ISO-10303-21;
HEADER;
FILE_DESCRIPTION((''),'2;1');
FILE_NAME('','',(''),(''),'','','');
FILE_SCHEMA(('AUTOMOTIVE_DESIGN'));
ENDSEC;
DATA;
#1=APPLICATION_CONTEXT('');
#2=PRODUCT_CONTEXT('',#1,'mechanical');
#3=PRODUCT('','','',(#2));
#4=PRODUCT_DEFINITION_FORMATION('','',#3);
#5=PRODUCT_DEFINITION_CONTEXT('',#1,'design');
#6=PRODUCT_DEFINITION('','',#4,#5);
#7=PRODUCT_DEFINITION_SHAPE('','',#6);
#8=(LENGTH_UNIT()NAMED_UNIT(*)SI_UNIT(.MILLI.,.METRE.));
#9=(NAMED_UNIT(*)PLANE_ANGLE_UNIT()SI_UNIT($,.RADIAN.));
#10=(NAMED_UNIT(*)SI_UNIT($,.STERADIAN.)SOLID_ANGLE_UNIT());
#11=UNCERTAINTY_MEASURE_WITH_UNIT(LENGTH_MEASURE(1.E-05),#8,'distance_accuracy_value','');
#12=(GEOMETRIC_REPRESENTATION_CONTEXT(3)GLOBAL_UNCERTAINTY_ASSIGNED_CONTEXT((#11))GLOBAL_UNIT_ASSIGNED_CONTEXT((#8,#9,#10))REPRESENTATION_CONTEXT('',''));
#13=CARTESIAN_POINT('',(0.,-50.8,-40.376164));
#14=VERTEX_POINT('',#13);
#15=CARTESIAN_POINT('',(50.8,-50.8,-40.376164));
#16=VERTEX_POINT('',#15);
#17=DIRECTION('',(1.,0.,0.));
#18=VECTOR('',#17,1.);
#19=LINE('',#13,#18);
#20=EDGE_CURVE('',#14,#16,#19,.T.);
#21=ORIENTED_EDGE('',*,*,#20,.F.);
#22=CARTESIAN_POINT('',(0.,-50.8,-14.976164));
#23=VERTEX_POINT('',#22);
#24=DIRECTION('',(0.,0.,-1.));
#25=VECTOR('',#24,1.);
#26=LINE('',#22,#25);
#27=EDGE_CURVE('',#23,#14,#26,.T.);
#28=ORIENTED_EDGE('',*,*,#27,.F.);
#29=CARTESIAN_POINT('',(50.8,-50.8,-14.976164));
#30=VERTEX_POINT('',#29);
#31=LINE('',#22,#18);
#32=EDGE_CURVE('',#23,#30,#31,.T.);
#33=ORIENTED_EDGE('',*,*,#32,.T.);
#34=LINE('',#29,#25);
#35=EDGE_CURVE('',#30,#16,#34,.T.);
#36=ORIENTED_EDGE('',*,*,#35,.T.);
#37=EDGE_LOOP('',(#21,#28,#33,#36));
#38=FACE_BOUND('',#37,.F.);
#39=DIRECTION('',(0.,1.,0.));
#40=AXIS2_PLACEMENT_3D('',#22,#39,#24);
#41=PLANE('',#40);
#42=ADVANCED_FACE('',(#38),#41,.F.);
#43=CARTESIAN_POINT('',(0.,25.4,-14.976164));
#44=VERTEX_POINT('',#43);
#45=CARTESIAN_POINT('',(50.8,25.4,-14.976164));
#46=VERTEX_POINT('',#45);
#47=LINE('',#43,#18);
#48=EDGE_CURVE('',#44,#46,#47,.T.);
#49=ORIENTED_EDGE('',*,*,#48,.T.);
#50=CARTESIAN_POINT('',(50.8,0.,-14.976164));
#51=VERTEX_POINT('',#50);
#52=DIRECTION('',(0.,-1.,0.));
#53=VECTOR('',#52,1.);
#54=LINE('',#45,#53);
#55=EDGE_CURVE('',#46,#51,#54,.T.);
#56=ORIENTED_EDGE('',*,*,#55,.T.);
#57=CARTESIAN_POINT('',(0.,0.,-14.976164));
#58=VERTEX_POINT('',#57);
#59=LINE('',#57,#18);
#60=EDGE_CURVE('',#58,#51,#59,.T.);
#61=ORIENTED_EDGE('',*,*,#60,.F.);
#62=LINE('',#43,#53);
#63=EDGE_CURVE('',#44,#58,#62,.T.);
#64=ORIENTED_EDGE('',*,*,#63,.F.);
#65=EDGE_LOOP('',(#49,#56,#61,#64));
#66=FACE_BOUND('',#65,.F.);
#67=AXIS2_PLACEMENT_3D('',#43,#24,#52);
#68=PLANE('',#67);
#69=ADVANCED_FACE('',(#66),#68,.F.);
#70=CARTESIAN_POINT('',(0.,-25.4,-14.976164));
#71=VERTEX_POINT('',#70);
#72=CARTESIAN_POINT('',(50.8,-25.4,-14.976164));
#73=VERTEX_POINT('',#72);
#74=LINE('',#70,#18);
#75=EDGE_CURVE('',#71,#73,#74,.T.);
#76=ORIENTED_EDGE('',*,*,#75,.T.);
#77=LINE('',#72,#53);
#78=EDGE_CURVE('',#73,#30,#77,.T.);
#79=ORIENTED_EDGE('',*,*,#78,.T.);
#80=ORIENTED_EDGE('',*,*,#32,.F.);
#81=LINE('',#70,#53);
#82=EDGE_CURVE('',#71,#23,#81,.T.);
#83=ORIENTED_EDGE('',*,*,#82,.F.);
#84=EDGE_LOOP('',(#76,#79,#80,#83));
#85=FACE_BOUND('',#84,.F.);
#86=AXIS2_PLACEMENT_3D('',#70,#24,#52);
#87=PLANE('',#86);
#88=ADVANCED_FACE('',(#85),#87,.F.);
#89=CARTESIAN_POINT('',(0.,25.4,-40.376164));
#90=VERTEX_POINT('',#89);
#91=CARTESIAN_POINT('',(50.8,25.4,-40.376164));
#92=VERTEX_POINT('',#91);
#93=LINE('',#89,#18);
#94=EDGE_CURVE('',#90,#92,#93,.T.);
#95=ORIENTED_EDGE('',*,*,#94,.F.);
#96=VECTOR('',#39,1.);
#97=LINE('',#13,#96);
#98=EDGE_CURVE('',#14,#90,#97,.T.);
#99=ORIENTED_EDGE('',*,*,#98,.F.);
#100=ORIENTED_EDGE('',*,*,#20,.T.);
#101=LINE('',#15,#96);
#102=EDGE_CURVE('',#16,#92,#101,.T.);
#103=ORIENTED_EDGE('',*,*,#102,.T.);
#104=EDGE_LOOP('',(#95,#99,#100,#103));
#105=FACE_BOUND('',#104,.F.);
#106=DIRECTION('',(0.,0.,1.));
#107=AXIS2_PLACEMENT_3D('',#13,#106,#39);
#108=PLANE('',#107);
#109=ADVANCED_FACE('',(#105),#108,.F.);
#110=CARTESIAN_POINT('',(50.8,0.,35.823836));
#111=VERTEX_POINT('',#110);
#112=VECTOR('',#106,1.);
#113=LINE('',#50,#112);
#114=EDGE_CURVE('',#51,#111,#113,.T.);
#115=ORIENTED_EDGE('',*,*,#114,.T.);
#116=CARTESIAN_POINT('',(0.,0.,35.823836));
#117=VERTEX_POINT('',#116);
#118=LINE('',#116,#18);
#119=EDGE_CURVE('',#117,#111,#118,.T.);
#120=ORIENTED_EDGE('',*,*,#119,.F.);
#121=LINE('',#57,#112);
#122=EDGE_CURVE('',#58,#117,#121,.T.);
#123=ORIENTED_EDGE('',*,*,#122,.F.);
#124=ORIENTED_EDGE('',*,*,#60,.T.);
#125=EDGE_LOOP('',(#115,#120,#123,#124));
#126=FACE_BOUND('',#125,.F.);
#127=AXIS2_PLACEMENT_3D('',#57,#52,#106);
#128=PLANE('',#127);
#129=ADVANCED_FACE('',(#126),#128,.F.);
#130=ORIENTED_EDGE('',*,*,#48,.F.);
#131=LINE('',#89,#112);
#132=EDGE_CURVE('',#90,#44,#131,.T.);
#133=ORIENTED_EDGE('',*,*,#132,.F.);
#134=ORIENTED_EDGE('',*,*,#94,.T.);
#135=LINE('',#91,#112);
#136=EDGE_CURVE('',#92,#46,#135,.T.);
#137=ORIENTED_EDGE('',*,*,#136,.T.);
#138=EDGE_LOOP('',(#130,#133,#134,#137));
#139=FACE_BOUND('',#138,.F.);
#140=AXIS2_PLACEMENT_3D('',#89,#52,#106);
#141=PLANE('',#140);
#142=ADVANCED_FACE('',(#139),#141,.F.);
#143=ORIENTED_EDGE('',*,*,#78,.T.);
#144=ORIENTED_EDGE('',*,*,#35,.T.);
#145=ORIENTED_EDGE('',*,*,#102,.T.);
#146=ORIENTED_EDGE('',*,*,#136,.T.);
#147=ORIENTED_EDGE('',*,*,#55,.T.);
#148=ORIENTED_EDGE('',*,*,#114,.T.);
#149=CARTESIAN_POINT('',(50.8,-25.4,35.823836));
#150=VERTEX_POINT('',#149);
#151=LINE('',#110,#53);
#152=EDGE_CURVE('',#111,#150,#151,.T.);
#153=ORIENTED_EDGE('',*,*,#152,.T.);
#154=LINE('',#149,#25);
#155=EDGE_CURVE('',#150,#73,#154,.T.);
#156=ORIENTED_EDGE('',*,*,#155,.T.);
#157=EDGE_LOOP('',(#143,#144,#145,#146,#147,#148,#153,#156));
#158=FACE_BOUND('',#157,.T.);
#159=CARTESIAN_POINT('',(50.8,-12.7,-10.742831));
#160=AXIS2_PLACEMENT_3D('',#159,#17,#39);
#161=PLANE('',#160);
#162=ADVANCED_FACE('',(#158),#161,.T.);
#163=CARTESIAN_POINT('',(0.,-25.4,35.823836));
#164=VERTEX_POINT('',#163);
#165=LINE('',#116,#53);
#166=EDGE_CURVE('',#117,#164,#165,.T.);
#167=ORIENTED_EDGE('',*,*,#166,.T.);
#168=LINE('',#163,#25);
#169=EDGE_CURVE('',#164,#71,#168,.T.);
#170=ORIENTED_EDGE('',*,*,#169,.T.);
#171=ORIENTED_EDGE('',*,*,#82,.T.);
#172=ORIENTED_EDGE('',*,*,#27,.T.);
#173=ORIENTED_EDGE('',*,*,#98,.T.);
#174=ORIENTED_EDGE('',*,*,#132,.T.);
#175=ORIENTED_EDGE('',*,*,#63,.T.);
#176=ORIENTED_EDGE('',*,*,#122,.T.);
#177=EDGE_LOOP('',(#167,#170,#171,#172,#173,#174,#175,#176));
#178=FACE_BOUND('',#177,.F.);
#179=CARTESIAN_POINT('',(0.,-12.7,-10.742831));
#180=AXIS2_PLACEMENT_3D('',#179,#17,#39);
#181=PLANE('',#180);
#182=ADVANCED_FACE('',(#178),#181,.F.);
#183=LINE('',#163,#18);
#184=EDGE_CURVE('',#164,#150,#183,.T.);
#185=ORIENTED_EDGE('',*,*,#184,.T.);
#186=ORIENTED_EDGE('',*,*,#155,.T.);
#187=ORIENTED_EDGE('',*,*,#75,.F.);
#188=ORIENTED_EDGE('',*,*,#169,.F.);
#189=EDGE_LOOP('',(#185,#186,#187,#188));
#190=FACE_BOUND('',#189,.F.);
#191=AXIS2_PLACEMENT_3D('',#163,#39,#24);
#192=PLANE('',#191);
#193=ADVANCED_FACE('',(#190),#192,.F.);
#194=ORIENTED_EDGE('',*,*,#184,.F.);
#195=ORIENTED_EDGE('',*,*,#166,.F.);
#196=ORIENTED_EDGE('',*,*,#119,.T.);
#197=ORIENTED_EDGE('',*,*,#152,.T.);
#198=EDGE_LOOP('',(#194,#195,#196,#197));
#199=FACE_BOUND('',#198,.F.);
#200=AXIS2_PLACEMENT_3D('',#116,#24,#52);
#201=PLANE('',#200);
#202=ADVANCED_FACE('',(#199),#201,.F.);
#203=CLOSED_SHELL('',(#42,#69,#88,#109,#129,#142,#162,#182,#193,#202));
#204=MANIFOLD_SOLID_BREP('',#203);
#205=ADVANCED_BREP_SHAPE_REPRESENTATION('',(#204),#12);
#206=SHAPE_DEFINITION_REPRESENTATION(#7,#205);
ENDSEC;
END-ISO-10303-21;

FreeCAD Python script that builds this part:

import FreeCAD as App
import Part
import Sketcher

V = App.Vector
Q = App.Units.Quantity


def add_polygon(sketch, points):
    """Adds a closed chain of lines whose ends are joined by coincident constraints."""
    first, n = sketch.GeometryCount, len(points)
    for a, b in zip(points, points[1:] + points[:1]):
        sketch.addGeometry(Part.LineSegment(App.Vector(*a, 0), App.Vector(*b, 0)), False)
    for i in range(n):
        sketch.addConstraint(Sketcher.Constraint("Coincident", first + i, 2, first + (i + 1) % n, 1))

doc = App.newDocument("Part")
body = doc.addObject("PartDesign::Body", "Body")

# Sketch on YZ plane
sketch1 = body.newObject("Sketcher::SketchObject", "Sketch")
sketch1.AttachmentSupport = (doc.getObject("YZ_Plane"), [""])
sketch1.MapMode = "FlatFace"
add_polygon(sketch1, [(-51, -40), (25, -40), (25, -15), (0, -15), (0, 36), (-25, 36), (-25, -15), (-51, -15)])  # lines 0-7
sketch1.addConstraint([
    Sketcher.Constraint("Horizontal", 0),
    Sketcher.Constraint("Vertical", 1),
    Sketcher.Constraint("Horizontal", 2),
    Sketcher.Constraint("Vertical", 3),
    Sketcher.Constraint("Horizontal", 4),
    Sketcher.Constraint("Vertical", 5),
    Sketcher.Constraint("Horizontal", 6),
    Sketcher.Constraint("Vertical", 7),
    Sketcher.Constraint("Symmetric", 1, 2, 5, 2, -2),
    Sketcher.Constraint("PointOnObject", 2, 2, -2),
    Sketcher.Constraint("Equal", 4, 6),
    Sketcher.Constraint("Equal", 6, 1),
    Sketcher.Constraint("DistanceX", 0, 1, 0, 2, Q("3 in")),
    Sketcher.Constraint("DistanceY", 3, 1, 3, 2, Q("2 in")),
    Sketcher.Constraint("DistanceY", 0, 2, -1, 1, Q("40.376164 mm")),
])
pad1 = body.newObject("PartDesign::Pad", "Pad")
pad1.Profile = sketch1
pad1.Length = Q("2 in")

doc.recompute()
